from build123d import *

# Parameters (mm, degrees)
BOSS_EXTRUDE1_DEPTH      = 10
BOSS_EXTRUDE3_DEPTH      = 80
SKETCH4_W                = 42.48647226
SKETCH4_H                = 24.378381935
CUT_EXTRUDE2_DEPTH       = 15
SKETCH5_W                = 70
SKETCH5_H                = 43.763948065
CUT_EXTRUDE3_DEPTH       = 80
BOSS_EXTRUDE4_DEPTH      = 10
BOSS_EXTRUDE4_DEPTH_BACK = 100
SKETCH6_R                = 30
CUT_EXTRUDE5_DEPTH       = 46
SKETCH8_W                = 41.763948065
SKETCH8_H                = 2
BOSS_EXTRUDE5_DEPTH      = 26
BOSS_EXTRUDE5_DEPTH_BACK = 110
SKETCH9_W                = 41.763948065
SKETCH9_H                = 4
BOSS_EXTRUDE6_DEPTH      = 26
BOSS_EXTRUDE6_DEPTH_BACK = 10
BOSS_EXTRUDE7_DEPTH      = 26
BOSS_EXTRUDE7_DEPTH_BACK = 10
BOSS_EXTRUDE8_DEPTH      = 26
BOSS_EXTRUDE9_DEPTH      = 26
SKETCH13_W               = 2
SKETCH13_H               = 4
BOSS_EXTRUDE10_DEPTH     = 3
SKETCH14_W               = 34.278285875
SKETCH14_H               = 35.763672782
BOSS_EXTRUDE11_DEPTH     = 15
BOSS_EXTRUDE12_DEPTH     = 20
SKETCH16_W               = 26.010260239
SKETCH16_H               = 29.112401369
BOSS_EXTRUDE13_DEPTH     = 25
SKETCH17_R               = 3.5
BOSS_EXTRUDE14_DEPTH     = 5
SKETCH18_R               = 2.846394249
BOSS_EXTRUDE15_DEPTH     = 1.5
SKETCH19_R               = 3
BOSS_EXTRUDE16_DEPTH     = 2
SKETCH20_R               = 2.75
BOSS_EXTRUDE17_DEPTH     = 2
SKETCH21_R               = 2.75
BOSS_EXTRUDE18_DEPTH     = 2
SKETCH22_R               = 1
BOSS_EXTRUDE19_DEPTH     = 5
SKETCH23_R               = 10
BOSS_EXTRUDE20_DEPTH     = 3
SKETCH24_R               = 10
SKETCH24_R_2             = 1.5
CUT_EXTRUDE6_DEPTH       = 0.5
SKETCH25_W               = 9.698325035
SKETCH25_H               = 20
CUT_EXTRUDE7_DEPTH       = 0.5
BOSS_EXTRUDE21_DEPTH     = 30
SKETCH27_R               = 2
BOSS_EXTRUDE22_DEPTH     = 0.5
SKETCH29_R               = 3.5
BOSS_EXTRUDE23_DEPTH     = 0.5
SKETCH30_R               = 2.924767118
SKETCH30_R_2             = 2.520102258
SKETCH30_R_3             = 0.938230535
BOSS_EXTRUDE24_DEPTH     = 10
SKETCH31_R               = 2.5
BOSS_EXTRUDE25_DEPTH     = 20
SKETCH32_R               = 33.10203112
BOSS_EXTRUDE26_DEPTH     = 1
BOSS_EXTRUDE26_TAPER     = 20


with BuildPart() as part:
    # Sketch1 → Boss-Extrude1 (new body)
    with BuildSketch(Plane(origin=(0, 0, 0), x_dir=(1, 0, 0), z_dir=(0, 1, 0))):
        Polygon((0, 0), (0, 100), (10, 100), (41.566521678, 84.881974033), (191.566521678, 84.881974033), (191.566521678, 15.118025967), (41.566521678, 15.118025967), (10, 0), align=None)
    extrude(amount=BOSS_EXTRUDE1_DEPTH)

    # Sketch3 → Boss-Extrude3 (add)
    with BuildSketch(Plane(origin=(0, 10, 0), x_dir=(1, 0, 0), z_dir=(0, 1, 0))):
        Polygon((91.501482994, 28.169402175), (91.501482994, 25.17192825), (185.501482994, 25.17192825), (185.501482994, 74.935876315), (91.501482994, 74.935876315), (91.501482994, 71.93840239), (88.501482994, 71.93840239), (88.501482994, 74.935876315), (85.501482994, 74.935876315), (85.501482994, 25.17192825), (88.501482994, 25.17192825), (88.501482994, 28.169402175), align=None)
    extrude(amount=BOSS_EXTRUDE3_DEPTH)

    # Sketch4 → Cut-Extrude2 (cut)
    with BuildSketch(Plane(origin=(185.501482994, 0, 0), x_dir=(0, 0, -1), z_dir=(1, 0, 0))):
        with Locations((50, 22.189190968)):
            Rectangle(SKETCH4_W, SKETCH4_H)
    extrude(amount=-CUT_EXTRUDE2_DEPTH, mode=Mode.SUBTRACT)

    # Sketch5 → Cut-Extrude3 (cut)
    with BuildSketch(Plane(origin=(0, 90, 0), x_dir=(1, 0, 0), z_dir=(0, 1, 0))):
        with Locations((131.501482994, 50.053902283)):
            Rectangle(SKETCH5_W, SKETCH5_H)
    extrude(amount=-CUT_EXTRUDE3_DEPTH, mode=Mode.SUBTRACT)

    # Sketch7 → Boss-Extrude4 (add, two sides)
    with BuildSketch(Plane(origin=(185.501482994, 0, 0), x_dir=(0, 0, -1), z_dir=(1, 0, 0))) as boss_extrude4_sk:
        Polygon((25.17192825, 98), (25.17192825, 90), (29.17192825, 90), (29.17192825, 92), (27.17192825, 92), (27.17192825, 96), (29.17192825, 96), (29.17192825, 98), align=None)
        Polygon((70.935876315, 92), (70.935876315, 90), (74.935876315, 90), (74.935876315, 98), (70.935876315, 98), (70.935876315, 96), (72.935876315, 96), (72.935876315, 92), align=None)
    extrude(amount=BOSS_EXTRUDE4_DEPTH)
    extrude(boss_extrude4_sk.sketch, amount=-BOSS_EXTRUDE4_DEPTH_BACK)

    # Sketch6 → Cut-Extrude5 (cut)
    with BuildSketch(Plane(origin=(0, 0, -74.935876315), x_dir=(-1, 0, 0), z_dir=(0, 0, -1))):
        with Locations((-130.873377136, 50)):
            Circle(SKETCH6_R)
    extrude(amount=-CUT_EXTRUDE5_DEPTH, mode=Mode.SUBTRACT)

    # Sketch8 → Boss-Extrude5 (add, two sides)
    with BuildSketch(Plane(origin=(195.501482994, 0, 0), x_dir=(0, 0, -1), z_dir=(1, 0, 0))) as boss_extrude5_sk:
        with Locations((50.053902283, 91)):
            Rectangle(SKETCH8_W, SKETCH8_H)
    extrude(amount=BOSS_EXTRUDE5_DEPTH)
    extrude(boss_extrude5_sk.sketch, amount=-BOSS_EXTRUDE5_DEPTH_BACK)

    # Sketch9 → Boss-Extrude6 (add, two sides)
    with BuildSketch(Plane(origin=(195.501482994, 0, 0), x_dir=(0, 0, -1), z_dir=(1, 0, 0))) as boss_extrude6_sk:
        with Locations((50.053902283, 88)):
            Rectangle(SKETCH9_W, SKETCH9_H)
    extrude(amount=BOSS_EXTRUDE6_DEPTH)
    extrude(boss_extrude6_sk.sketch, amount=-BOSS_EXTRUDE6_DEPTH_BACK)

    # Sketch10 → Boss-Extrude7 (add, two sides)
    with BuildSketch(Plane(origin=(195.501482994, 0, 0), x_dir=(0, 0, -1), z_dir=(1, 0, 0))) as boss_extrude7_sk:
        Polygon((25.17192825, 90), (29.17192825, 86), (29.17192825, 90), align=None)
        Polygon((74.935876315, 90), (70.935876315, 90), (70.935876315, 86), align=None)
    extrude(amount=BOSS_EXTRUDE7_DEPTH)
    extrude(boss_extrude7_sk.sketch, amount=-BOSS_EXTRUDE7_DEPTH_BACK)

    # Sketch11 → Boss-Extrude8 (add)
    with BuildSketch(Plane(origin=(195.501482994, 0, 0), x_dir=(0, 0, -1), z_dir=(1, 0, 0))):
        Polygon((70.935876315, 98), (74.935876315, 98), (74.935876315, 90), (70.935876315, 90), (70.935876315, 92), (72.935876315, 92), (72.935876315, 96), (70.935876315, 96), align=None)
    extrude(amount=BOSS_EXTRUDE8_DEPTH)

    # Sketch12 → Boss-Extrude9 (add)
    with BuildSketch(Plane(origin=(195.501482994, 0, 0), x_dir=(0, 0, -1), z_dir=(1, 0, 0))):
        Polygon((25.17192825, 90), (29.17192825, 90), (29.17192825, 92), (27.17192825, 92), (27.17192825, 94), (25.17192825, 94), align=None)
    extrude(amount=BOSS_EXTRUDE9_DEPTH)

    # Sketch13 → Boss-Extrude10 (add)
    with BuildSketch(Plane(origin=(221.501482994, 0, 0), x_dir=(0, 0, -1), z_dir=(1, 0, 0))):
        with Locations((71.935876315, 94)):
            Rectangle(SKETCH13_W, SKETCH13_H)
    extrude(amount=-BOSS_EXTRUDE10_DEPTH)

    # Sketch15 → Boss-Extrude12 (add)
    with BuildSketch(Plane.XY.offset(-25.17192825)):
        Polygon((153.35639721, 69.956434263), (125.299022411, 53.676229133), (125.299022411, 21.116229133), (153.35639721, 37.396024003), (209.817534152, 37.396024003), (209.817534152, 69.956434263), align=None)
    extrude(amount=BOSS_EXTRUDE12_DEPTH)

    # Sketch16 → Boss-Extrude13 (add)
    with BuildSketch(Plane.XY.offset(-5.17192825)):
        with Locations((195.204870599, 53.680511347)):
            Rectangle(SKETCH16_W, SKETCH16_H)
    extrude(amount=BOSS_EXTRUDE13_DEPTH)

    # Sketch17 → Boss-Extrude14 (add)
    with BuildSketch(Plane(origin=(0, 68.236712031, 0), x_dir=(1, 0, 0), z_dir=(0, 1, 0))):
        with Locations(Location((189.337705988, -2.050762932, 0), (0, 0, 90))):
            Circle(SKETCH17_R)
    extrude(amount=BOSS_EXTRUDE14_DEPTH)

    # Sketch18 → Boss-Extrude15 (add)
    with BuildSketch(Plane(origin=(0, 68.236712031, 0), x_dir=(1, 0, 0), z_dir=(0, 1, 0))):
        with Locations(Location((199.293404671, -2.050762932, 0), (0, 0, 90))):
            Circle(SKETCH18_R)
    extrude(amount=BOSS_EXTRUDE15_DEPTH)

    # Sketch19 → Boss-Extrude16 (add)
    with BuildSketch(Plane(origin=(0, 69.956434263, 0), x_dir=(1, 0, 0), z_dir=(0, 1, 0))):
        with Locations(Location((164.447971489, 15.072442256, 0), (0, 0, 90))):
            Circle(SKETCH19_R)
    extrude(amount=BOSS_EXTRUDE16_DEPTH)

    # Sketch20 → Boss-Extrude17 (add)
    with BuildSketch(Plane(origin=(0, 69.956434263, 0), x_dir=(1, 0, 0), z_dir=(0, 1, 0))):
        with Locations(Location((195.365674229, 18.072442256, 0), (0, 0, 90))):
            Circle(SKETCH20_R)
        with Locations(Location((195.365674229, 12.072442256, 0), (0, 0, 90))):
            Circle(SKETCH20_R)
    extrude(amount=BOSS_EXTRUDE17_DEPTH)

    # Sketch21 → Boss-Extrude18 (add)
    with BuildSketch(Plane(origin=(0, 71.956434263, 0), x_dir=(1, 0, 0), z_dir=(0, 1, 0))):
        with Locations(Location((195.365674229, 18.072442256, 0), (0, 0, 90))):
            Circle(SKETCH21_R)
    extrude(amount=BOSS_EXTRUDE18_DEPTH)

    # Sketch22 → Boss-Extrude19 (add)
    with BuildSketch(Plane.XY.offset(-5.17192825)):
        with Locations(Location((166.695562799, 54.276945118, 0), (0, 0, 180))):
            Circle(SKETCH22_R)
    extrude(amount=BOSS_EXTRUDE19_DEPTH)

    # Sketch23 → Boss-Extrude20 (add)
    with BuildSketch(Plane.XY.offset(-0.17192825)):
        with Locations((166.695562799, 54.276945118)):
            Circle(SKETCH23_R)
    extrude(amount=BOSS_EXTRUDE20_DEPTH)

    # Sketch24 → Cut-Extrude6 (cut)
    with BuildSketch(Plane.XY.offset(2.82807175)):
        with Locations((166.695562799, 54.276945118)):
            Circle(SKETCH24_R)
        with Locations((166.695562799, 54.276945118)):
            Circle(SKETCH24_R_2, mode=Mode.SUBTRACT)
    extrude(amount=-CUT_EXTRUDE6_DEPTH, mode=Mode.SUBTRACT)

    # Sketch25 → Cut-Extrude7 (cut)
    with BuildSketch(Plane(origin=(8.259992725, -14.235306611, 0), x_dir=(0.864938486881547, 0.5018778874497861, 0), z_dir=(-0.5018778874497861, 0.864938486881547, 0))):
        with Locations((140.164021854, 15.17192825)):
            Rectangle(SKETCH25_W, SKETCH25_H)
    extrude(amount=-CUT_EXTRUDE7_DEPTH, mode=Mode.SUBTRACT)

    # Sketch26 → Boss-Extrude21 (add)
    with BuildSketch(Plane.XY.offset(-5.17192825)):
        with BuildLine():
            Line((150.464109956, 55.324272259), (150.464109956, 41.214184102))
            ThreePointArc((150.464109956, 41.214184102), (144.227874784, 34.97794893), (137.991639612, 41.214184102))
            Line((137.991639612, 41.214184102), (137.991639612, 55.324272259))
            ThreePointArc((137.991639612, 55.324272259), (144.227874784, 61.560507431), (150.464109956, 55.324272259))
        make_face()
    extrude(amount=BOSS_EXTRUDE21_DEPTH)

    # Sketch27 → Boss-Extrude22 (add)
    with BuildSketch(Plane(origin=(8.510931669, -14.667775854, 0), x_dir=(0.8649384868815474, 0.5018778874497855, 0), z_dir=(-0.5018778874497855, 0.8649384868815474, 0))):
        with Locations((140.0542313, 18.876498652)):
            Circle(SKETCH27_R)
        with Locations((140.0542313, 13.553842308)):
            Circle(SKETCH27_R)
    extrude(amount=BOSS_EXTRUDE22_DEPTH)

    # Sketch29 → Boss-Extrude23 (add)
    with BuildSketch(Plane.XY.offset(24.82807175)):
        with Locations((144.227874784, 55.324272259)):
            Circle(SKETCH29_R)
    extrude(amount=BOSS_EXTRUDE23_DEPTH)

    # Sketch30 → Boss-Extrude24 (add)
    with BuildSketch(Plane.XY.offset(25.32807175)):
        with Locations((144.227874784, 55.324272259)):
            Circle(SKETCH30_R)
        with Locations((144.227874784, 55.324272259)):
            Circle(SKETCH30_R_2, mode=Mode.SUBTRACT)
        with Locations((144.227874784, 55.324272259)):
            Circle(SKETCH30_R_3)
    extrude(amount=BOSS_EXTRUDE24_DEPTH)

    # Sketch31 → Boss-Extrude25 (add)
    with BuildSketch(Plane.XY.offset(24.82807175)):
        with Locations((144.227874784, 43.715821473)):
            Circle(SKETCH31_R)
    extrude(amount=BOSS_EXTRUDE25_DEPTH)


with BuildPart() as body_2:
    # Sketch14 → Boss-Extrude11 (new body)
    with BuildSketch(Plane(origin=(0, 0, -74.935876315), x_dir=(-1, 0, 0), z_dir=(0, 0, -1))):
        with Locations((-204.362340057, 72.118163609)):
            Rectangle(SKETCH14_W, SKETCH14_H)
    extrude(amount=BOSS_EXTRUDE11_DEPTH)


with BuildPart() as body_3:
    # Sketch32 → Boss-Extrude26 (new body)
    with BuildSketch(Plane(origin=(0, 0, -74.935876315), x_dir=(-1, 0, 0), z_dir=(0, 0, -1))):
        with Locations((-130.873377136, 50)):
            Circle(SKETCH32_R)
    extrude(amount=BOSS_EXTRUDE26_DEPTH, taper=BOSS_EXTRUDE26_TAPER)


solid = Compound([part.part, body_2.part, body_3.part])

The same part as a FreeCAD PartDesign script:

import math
import FreeCAD as App
import Part
import Sketcher


def add_polygon(sketch, points):
    """Adds a closed chain of lines whose ends are joined by coincident constraints."""
    first, n = sketch.GeometryCount, len(points)
    for a, b in zip(points, points[1:] + points[:1]):
        sketch.addGeometry(Part.LineSegment(App.Vector(*a, 0), App.Vector(*b, 0)), False)
    for i in range(n):
        sketch.addConstraint(Sketcher.Constraint("Coincident", first + i, 2, first + (i + 1) % n, 1))

doc = App.newDocument("Part")
body = doc.addObject("PartDesign::Body", "Body")

# Sketch on XZ plane
sketch1 = body.newObject("Sketcher::SketchObject", "Sketch")
sketch1.AttachmentSupport = (doc.getObject("XZ_Plane"), [""])
sketch1.MapMode = "FlatFace"
add_polygon(sketch1, [(0, -100), (0, 0), (10, 0), (42, -15), (192, -15), (192, -85), (42, -85), (10, -100)])  # lines 0-7
sketch1.addConstraint(Sketcher.Constraint("Vertical", 0))
sketch1.addConstraint(Sketcher.Constraint("Horizontal", 1))
sketch1.addConstraint(Sketcher.Constraint("Horizontal", 3))
sketch1.addConstraint(Sketcher.Constraint("Vertical", 4))
sketch1.addConstraint(Sketcher.Constraint("Horizontal", 5))
sketch1.addConstraint(Sketcher.Constraint("Horizontal", 7))
sketch1.addConstraint(Sketcher.Constraint("Coincident", 0, 2, -1, 1))
sketch1.addConstraint(Sketcher.Constraint("Vertical", 2, 2, 5, 2))
sketch1.addConstraint(Sketcher.Constraint("Vertical", 1, 2, 6, 2))
sketch1.addConstraint(Sketcher.Constraint("Equal", 2, 6))
sketch1.addConstraint(Sketcher.Constraint("DistanceX", 1, 1, 1, 2, 10.0))
sketch1.addConstraint(Sketcher.Constraint("DistanceX", 3, 1, 3, 2, 150.0))
sketch1.addConstraint(Sketcher.Constraint("DistanceY", 0, 1, 0, 2, 100.0))
sketch1.addConstraint(Sketcher.Constraint("Distance", 2, 35.0))
sketch1.addConstraint(Sketcher.Constraint("DistanceY", 4, 2, 4, 1, 69.763948))
pad1 = body.newObject("PartDesign::Pad", "Pad")
pad1.Profile = sketch1
pad1.Length = 10
pad1.Reversed = True

# Sketch on XZ plane
sketch2 = body.newObject("Sketcher::SketchObject", "Sketch001")
sketch2.AttachmentSupport = (doc.getObject("XZ_Plane"), [""])
sketch2.MapMode = "FlatFace"
sketch2.AttachmentOffset = App.Placement(App.Vector(0, 0, -10), App.Rotation())
add_polygon(sketch2, [(91.5, -28.2), (91.5, -25.2), (185.5, -25.2), (185.5, -74.9), (91.5, -74.9), (91.5, -71.9), (88.5, -71.9), (88.5, -74.9), (85.5, -74.9), (85.5, -25.2), (88.5, -25.2), (88.5, -28.2)])  # lines 0-11
sketch2.addConstraint(Sketcher.Constraint("Vertical", 0))
sketch2.addConstraint(Sketcher.Constraint("Horizontal", 1))
sketch2.addConstraint(Sketcher.Constraint("Vertical", 2))
sketch2.addConstraint(Sketcher.Constraint("Horizontal", 3))
sketch2.addConstraint(Sketcher.Constraint("Vertical", 4))
sketch2.addConstraint(Sketcher.Constraint("Horizontal", 5))
sketch2.addConstraint(Sketcher.Constraint("Vertical", 6))
sketch2.addConstraint(Sketcher.Constraint("Horizontal", 7))
sketch2.addConstraint(Sketcher.Constraint("Vertical", 8))
sketch2.addConstraint(Sketcher.Constraint("Horizontal", 9))
sketch2.addConstraint(Sketcher.Constraint("Vertical", 10))
sketch2.addConstraint(Sketcher.Constraint("Horizontal", 11))
sketch2.addConstraint(Sketcher.Constraint("Horizontal", 3, 2, 6, 2))
sketch2.addConstraint(Sketcher.Constraint("Horizontal", 1, 2, 8, 2))
sketch2.addConstraint(Sketcher.Constraint("Vertical", 0, 2, 3, 2))
sketch2.addConstraint(Sketcher.Constraint("Vertical", 6, 2, 9, 2))
sketch2.addConstraint(Sketcher.Constraint("Equal", 5, 7))
sketch2.addConstraint(Sketcher.Constraint("Equal", 0, 4))
sketch2.addConstraint(Sketcher.Constraint("DistanceX", 1, 1, 1, 2, 94.0))
sketch2.addConstraint(Sketcher.Constraint("DistanceX", 5, 2, 5, 1, 3.0))
sketch2.addConstraint(Sketcher.Constraint("DistanceY", 5, 2, 10, 2, 43.769))
sketch2.addConstraint(Sketcher.Constraint("DistanceY", 2, 2, 2, 1, 49.763948))
sketch2.addConstraint(Sketcher.Constraint("DistanceY", 0, 2, -1, 1, 25.171928))
sketch2.addConstraint(Sketcher.Constraint("DistanceX", -1, 1, 0, 2, 91.501483))
pad2 = body.newObject("PartDesign::Pad", "Pad001")
pad2.Profile = sketch2
pad2.Length = 80
pad2.Reversed = True

# Sketch on YZ plane
sketch3 = body.newObject("Sketcher::SketchObject", "Sketch002")
sketch3.AttachmentSupport = (doc.getObject("YZ_Plane"), [""])
sketch3.MapMode = "FlatFace"
sketch3.AttachmentOffset = App.Placement(App.Vector(0, 0, 185.501483), App.Rotation())
add_polygon(sketch3, [(34, -29), (10, -29), (10, -71), (34, -71)])  # lines 0-3
sketch3.addConstraint(Sketcher.Constraint("Horizontal", 0))
sketch3.addConstraint(Sketcher.Constraint("Vertical", 1))
sketch3.addConstraint(Sketcher.Constraint("Horizontal", 2))
sketch3.addConstraint(Sketcher.Constraint("Vertical", 3))
sketch3.addConstraint(Sketcher.Constraint("DistanceX", -1, 1, 0, 2, 10.0))
sketch3.addConstraint(Sketcher.Constraint("DistanceX", 0, 2, 0, 1, 24.378382))
sketch3.addConstraint(Sketcher.Constraint("DistanceY", 1, 2, 1, 1, 42.486472))
sketch3.addConstraint(Sketcher.Constraint("DistanceY", 0, 2, -1, 1, 28.756764))
pocket1 = body.newObject("PartDesign::Pocket", "Pocket")
pocket1.Profile = sketch3
pocket1.Length = 15

# Sketch on XZ plane
sketch4 = body.newObject("Sketcher::SketchObject", "Sketch003")
sketch4.AttachmentSupport = (doc.getObject("XZ_Plane"), [""])
sketch4.MapMode = "FlatFace"
sketch4.AttachmentOffset = App.Placement(App.Vector(0, 0, -90), App.Rotation())
add_polygon(sketch4, [(97, -72), (97, -28), (167, -28), (167, -72)])  # lines 0-3
sketch4.addConstraint(Sketcher.Constraint("Vertical", 0))
sketch4.addConstraint(Sketcher.Constraint("Horizontal", 1))
sketch4.addConstraint(Sketcher.Constraint("Vertical", 2))
sketch4.addConstraint(Sketcher.Constraint("Horizontal", 3))
sketch4.addConstraint(Sketcher.Constraint("DistanceX", 1, 1, 1, 2, 70.0))
sketch4.addConstraint(Sketcher.Constraint("DistanceY", 0, 1, 0, 2, 43.763948))
sketch4.addConstraint(Sketcher.Constraint("DistanceY", 0, 2, -1, 1, 28.171928))
sketch4.addConstraint(Sketcher.Constraint("DistanceX", -1, 1, 0, 2, 96.501483))
pocket2 = body.newObject("PartDesign::Pocket", "Pocket001")
pocket2.Profile = sketch4
pocket2.Length = 80
pocket2.Reversed = True

# Sketch on YZ plane
sketch5 = body.newObject("Sketcher::SketchObject", "Sketch004")
sketch5.AttachmentSupport = (doc.getObject("YZ_Plane"), [""])
sketch5.MapMode = "FlatFace"
sketch5.AttachmentOffset = App.Placement(App.Vector(0, 0, 185.501483), App.Rotation())
add_polygon(sketch5, [(98, -25.2), (90, -25.2), (90, -29.2), (92, -29.2), (92, -27.2), (96, -27.2), (96, -29.2), (98, -29.2)])  # lines 0-7
add_polygon(sketch5, [(92, -70.9), (90, -70.9), (90, -74.9), (98, -74.9), (98, -70.9), (96, -70.9), (96, -72.9), (92, -72.9)])  # lines 8-15
sketch5.addConstraint(Sketcher.Constraint("Horizontal", 0))
sketch5.addConstraint(Sketcher.Constraint("Vertical", 1))
sketch5.addConstraint(Sketcher.Constraint("Horizontal", 2))
sketch5.addConstraint(Sketcher.Constraint("Vertical", 3))
sketch5.addConstraint(Sketcher.Constraint("Horizontal", 4))
sketch5.addConstraint(Sketcher.Constraint("Vertical", 5))
sketch5.addConstraint(Sketcher.Constraint("Horizontal", 6))
sketch5.addConstraint(Sketcher.Constraint("Vertical", 7))
sketch5.addConstraint(Sketcher.Constraint("Horizontal", 8))
sketch5.addConstraint(Sketcher.Constraint("Vertical", 9))
sketch5.addConstraint(Sketcher.Constraint("Horizontal", 10))
sketch5.addConstraint(Sketcher.Constraint("Vertical", 11))
sketch5.addConstraint(Sketcher.Constraint("Horizontal", 12))
sketch5.addConstraint(Sketcher.Constraint("Vertical", 13))
sketch5.addConstraint(Sketcher.Constraint("Horizontal", 14))
sketch5.addConstraint(Sketcher.Constraint("Vertical", 15))
sketch5.addConstraint(Sketcher.Constraint("Horizontal", 2, 2, 5, 2))
sketch5.addConstraint(Sketcher.Constraint("Horizontal", 8, 2, 11, 2))
sketch5.addConstraint(Sketcher.Constraint("Vertical", 1, 2, 8, 2))
sketch5.addConstraint(Sketcher.Constraint("Vertical", 7, 2, 10, 2))
sketch5.addConstraint(Sketcher.Constraint("Vertical", 5, 2, 12, 2))
sketch5.addConstraint(Sketcher.Constraint("Vertical", 3, 2, 14, 2))
sketch5.addConstraint(Sketcher.Constraint("Equal", 2, 6))
sketch5.addConstraint(Sketcher.Constraint("Equal", 14, 1))
sketch5.addConstraint(Sketcher.Constraint("Equal", 12, 3))
sketch5.addConstraint(Sketcher.Constraint("Equal", 7, 9))
sketch5.addConstraint(Sketcher.Constraint("Equal", 5, 13))
sketch5.addConstraint(Sketcher.Constraint("DistanceX", 0, 2, 0, 1, 8.0))
sketch5.addConstraint(Sketcher.Constraint("DistanceX", 2, 1, 2, 2, 2.0))
sketch5.addConstraint(Sketcher.Constraint("DistanceX", -1, 1, 0, 2, 90.0))
sketch5.addConstraint(Sketcher.Constraint("DistanceY", 0, 2, -1, 1, 25.171928))
sketch5.addConstraint(Sketcher.Constraint("DistanceY", 8, 2, 1, 2, 41.763948))
pad3 = body.newObject("PartDesign::Pad", "Pad002")
pad3.Profile = sketch5
pad3.Type = "TwoLengths"
pad3.Length = 10
pad3.Length2 = 100

# Sketch on XY plane
sketch6 = body.newObject("Sketcher::SketchObject", "Sketch005")
sketch6.AttachmentSupport = (doc.getObject("XY_Plane"), [""])
sketch6.MapMode = "FlatFace"
sketch6.AttachmentOffset = App.Placement(App.Vector(0, 0, -74.935876), App.Rotation())
sketch6.addGeometry(Part.Circle(App.Vector(131, 50, 0), App.Vector(0, 0, 1), 30), False)
sketch6.addConstraint(Sketcher.Constraint("Diameter", 0, 60.0))
sketch6.addConstraint(Sketcher.Constraint("DistanceY", -1, 1, 0, 3, 50.0))
sketch6.addConstraint(Sketcher.Constraint("DistanceX", -1, 1, 0, 3, 130.873377))
pocket3 = body.newObject("PartDesign::Pocket", "Pocket002")
pocket3.Profile = sketch6
pocket3.Length = 46
pocket3.Reversed = True

# Sketch on YZ plane
sketch7 = body.newObject("Sketcher::SketchObject", "Sketch006")
sketch7.AttachmentSupport = (doc.getObject("YZ_Plane"), [""])
sketch7.MapMode = "FlatFace"
sketch7.AttachmentOffset = App.Placement(App.Vector(0, 0, 195.501483), App.Rotation())
add_polygon(sketch7, [(92, -29.2), (90, -29.2), (90, -70.9), (92, -70.9)])  # lines 0-3
sketch7.addConstraint(Sketcher.Constraint("Horizontal", 0))
sketch7.addConstraint(Sketcher.Constraint("Vertical", 1))
sketch7.addConstraint(Sketcher.Constraint("Horizontal", 2))
sketch7.addConstraint(Sketcher.Constraint("Vertical", 3))
sketch7.addConstraint(Sketcher.Constraint("DistanceX", 0, 2, 0, 1, 2.0))
sketch7.addConstraint(Sketcher.Constraint("DistanceX", -1, 1, 0, 2, 90.0))
sketch7.addConstraint(Sketcher.Constraint("DistanceY", 1, 2, 1, 1, 41.763948))
sketch7.addConstraint(Sketcher.Constraint("DistanceY", 0, 2, -1, 1, 29.171928))
pad4 = body.newObject("PartDesign::Pad", "Pad003")
pad4.Profile = sketch7
pad4.Type = "TwoLengths"
pad4.Length = 26
pad4.Length2 = 110

# Sketch on YZ plane
sketch8 = body.newObject("Sketcher::SketchObject", "Sketch007")
sketch8.AttachmentSupport = (doc.getObject("YZ_Plane"), [""])
sketch8.MapMode = "FlatFace"
sketch8.AttachmentOffset = App.Placement(App.Vector(0, 0, 195.501483), App.Rotation())
add_polygon(sketch8, [(90, -29.2), (86, -29.2), (86, -70.9), (90, -70.9)])  # lines 0-3
sketch8.addConstraint(Sketcher.Constraint("Horizontal", 0))
sketch8.addConstraint(Sketcher.Constraint("Vertical", 1))
sketch8.addConstraint(Sketcher.Constraint("Horizontal", 2))
sketch8.addConstraint(Sketcher.Constraint("Vertical", 3))
sketch8.addConstraint(Sketcher.Constraint("DistanceX", 0, 2, 0, 1, 4.0))
sketch8.addConstraint(Sketcher.Constraint("DistanceX", -1, 1, 0, 2, 86.0))
sketch8.addConstraint(Sketcher.Constraint("DistanceY", 1, 2, 1, 1, 41.763948))
sketch8.addConstraint(Sketcher.Constraint("DistanceY", 0, 2, -1, 1, 29.171928))
pad5 = body.newObject("PartDesign::Pad", "Pad004")
pad5.Profile = sketch8
pad5.Type = "TwoLengths"
pad5.Length = 26
pad5.Length2 = 10

# Sketch on YZ plane
sketch9 = body.newObject("Sketcher::SketchObject", "Sketch008")
sketch9.AttachmentSupport = (doc.getObject("YZ_Plane"), [""])
sketch9.MapMode = "FlatFace"
sketch9.AttachmentOffset = App.Placement(App.Vector(0, 0, 195.501483), App.Rotation())
add_polygon(sketch9, [(90, -25.2), (86, -29.2), (90, -29.2)])  # lines 0-2
add_polygon(sketch9, [(90, -74.9), (90, -70.9), (86, -70.9)])  # lines 3-5
sketch9.addConstraint(Sketcher.Constraint("Horizontal", 1))
sketch9.addConstraint(Sketcher.Constraint("Vertical", 2))
sketch9.addConstraint(Sketcher.Constraint("Vertical", 3))
sketch9.addConstraint(Sketcher.Constraint("Horizontal", 4))
sketch9.addConstraint(Sketcher.Constraint("Perpendicular", 0, 5))
sketch9.addConstraint(Sketcher.Constraint("Vertical", 2, 2, 3, 2))
sketch9.addConstraint(Sketcher.Constraint("Vertical", 0, 2, 4, 2))
sketch9.addConstraint(Sketcher.Constraint("Equal", 4, 2))
sketch9.addConstraint(Sketcher.Constraint("DistanceX", 1, 1, 1, 2, 4.0))
sketch9.addConstraint(Sketcher.Constraint("DistanceX", -1, 1, 0, 2, 86.0))
sketch9.addConstraint(Sketcher.Constraint("DistanceY", 0, 2, -1, 1, 29.171928))
sketch9.addConstraint(Sketcher.Constraint("DistanceY", 3, 2, 1, 2, 41.763948))
pad6 = body.newObject("PartDesign::Pad", "Pad005")
pad6.Profile = sketch9
pad6.Type = "TwoLengths"
pad6.Length = 26
pad6.Length2 = 10

# Sketch on YZ plane
sketch10 = body.newObject("Sketcher::SketchObject", "Sketch009")
sketch10.AttachmentSupport = (doc.getObject("YZ_Plane"), [""])
sketch10.MapMode = "FlatFace"
sketch10.AttachmentOffset = App.Placement(App.Vector(0, 0, 195.501483), App.Rotation())
add_polygon(sketch10, [(98, -74.9), (98, -70.9), (96, -70.9), (96, -72.9), (92, -72.9), (92, -70.9), (90, -70.9), (90, -74.9)])  # lines 0-7
sketch10.addConstraint(Sketcher.Constraint("Vertical", 0))
sketch10.addConstraint(Sketcher.Constraint("Horizontal", 1))
sketch10.addConstraint(Sketcher.Constraint("Vertical", 2))
sketch10.addConstraint(Sketcher.Constraint("Horizontal", 3))
sketch10.addConstraint(Sketcher.Constraint("Vertical", 4))
sketch10.addConstraint(Sketcher.Constraint("Horizontal", 5))
sketch10.addConstraint(Sketcher.Constraint("Vertical", 6))
sketch10.addConstraint(Sketcher.Constraint("Horizontal", 7))
sketch10.addConstraint(Sketcher.Constraint("Horizontal", 1, 2, 4, 2))
sketch10.addConstraint(Sketcher.Constraint("Equal", 1, 5))
sketch10.addConstraint(Sketcher.Constraint("Equal", 3, 0))
sketch10.addConstraint(Sketcher.Constraint("Equal", 5, 2))
sketch10.addConstraint(Sketcher.Constraint("DistanceX", 1, 2, 1, 1, 2.0))
sketch10.addConstraint(Sketcher.Constraint("DistanceX", 3, 2, 3, 1, 4.0))
sketch10.addConstraint(Sketcher.Constraint("DistanceX", -1, 1, 0, 2, 98.0))
sketch10.addConstraint(Sketcher.Constraint("DistanceY", 0, 2, -1, 1, 70.935876))
pad7 = body.newObject("PartDesign::Pad", "Pad006")
pad7.Profile = sketch10
pad7.Length = 26

# Sketch on YZ plane
sketch11 = body.newObject("Sketcher::SketchObject", "Sketch010")
sketch11.AttachmentSupport = (doc.getObject("YZ_Plane"), [""])
sketch11.MapMode = "FlatFace"
sketch11.AttachmentOffset = App.Placement(App.Vector(0, 0, 195.501483), App.Rotation())
add_polygon(sketch11, [(90, -25.2), (90, -29.2), (92, -29.2), (92, -27.2), (94, -27.2), (94, -25.2)])  # lines 0-5
sketch11.addConstraint(Sketcher.Constraint("Vertical", 0))
sketch11.addConstraint(Sketcher.Constraint("Horizontal", 1))
sketch11.addConstraint(Sketcher.Constraint("Vertical", 2))
sketch11.addConstraint(Sketcher.Constraint("Horizontal", 3))
sketch11.addConstraint(Sketcher.Constraint("Vertical", 4))
sketch11.addConstraint(Sketcher.Constraint("Horizontal", 5))
sketch11.addConstraint(Sketcher.Constraint("Equal", 1, 3))
sketch11.addConstraint(Sketcher.Constraint("Equal", 5, 0))
sketch11.addConstraint(Sketcher.Constraint("Equal", 3, 2))
sketch11.addConstraint(Sketcher.Constraint("DistanceX", 1, 1, 1, 2, 2.0))
sketch11.addConstraint(Sketcher.Constraint("DistanceX", -1, 1, 0, 2, 90.0))
sketch11.addConstraint(Sketcher.Constraint("DistanceY", 0, 2, -1, 1, 29.171928))
pad8 = body.newObject("PartDesign::Pad", "Pad007")
pad8.Profile = sketch11
pad8.Length = 26

# Sketch on YZ plane
sketch12 = body.newObject("Sketcher::SketchObject", "Sketch011")
sketch12.AttachmentSupport = (doc.getObject("YZ_Plane"), [""])
sketch12.MapMode = "FlatFace"
sketch12.AttachmentOffset = App.Placement(App.Vector(0, 0, 221.501483), App.Rotation())
add_polygon(sketch12, [(96, -70.9), (92, -70.9), (92, -72.9), (96, -72.9)])  # lines 0-3
sketch12.addConstraint(Sketcher.Constraint("Horizontal", 0))
sketch12.addConstraint(Sketcher.Constraint("Vertical", 1))
sketch12.addConstraint(Sketcher.Constraint("Horizontal", 2))
sketch12.addConstraint(Sketcher.Constraint("Vertical", 3))
sketch12.addConstraint(Sketcher.Constraint("DistanceX", 0, 2, 0, 1, 4.0))
sketch12.addConstraint(Sketcher.Constraint("DistanceY", 1, 2, 1, 1, 2.0))
sketch12.addConstraint(Sketcher.Constraint("DistanceX", -1, 1, 0, 2, 92.0))
sketch12.addConstraint(Sketcher.Constraint("DistanceY", 0, 2, -1, 1, 70.935876))
pad9 = body.newObject("PartDesign::Pad", "Pad008")
pad9.Profile = sketch12
pad9.Length = 3
pad9.Reversed = True

# Sketch on XY plane
sketch13 = body.newObject("Sketcher::SketchObject", "Sketch012")
sketch13.AttachmentSupport = (doc.getObject("XY_Plane"), [""])
sketch13.MapMode = "FlatFace"
sketch13.AttachmentOffset = App.Placement(App.Vector(0, 0, -25.171928), App.Rotation())
add_polygon(sketch13, [(153, 70), (125, 54), (125, 21), (153, 37), (210, 37), (210, 70)])  # lines 0-5
sketch13.addConstraint(Sketcher.Constraint("Vertical", 1))
sketch13.addConstraint(Sketcher.Constraint("Horizontal", 3))
sketch13.addConstraint(Sketcher.Constraint("Vertical", 4))
sketch13.addConstraint(Sketcher.Constraint("Horizontal", 5))
sketch13.addConstraint(Sketcher.Constraint("Vertical", 2, 2, 5, 2))
sketch13.addConstraint(Sketcher.Constraint("DistanceY", 1, 2, 1, 1, 32.56))
sketch13.addConstraint(Sketcher.Constraint("DistanceY", 4, 1, 4, 2, 32.56041))
sketch13.addConstraint(Sketcher.Constraint("Distance", 0, 32.438578))
sketch13.addConstraint(Sketcher.Constraint("DistanceX", 3, 1, 3, 2, 56.461137))
sketch13.addConstraint(Sketcher.Constraint("DistanceY", -1, 1, 0, 2, 53.676229))
sketch13.addConstraint(Sketcher.Constraint("DistanceX", 1, 2, 3, 2, 84.518512))
sketch13.addConstraint(Sketcher.Constraint("DistanceX", -1, 1, 0, 2, 125.299022))
pad10 = body.newObject("PartDesign::Pad", "Pad009")
pad10.Profile = sketch13
pad10.Length = 20

# Sketch on XY plane
sketch14 = body.newObject("Sketcher::SketchObject", "Sketch013")
sketch14.AttachmentSupport = (doc.getObject("XY_Plane"), [""])
sketch14.MapMode = "FlatFace"
sketch14.AttachmentOffset = App.Placement(App.Vector(0, 0, -5.171928), App.Rotation())
add_polygon(sketch14, [(182, 68), (182, 39), (208, 39), (208, 68)])  # lines 0-3
sketch14.addConstraint(Sketcher.Constraint("Vertical", 0))
sketch14.addConstraint(Sketcher.Constraint("Horizontal", 1))
sketch14.addConstraint(Sketcher.Constraint("Vertical", 2))
sketch14.addConstraint(Sketcher.Constraint("Horizontal", 3))
sketch14.addConstraint(Sketcher.Constraint("DistanceX", -1, 1, 1, 2, 208.210001))
sketch14.addConstraint(Sketcher.Constraint("DistanceY", 0, 2, 0, 1, 29.112401))
sketch14.addConstraint(Sketcher.Constraint("DistanceX", 1, 1, 1, 2, 26.01026))
sketch14.addConstraint(Sketcher.Constraint("DistanceY", -1, 1, 0, 2, 39.124311))
pad11 = body.newObject("PartDesign::Pad", "Pad010")
pad11.Profile = sketch14
pad11.Length = 25

# Sketch on XZ plane
sketch15 = body.newObject("Sketcher::SketchObject", "Sketch014")
sketch15.AttachmentSupport = (doc.getObject("XZ_Plane"), [""])
sketch15.MapMode = "FlatFace"
sketch15.AttachmentOffset = App.Placement(App.Vector(0, 0, -68.236712), App.Rotation())
sketch15.addGeometry(Part.Circle(App.Vector(189.3, 2.1, 0), App.Vector(0, 0, 1), 3.5), False)
sketch15.addConstraint(Sketcher.Constraint("Diameter", 0, 7.0))
sketch15.addConstraint(Sketcher.Constraint("DistanceX", -1, 1, 0, 3, 189.337706))
sketch15.addConstraint(Sketcher.Constraint("DistanceY", -1, 1, 0, 3, 2.050763))
pad12 = body.newObject("PartDesign::Pad", "Pad011")
pad12.Profile = sketch15
pad12.Length = 5
pad12.Reversed = True

# Sketch on XZ plane
sketch16 = body.newObject("Sketcher::SketchObject", "Sketch015")
sketch16.AttachmentSupport = (doc.getObject("XZ_Plane"), [""])
sketch16.MapMode = "FlatFace"
sketch16.AttachmentOffset = App.Placement(App.Vector(0, 0, -68.236712), App.Rotation())
sketch16.addGeometry(Part.Circle(App.Vector(199.3, 2.1, 0), App.Vector(0, 0, 1), 2.8), False)
sketch16.addConstraint(Sketcher.Constraint("Diameter", 0, 5.692788))
sketch16.addConstraint(Sketcher.Constraint("DistanceX", -1, 1, 0, 3, 199.293405))
sketch16.addConstraint(Sketcher.Constraint("DistanceY", -1, 1, 0, 3, 2.050763))
pad13 = body.newObject("PartDesign::Pad", "Pad012")
pad13.Profile = sketch16
pad13.Length = 1.5
pad13.Reversed = True

# Sketch on XZ plane
sketch17 = body.newObject("Sketcher::SketchObject", "Sketch016")
sketch17.AttachmentSupport = (doc.getObject("XZ_Plane"), [""])
sketch17.MapMode = "FlatFace"
sketch17.AttachmentOffset = App.Placement(App.Vector(0, 0, -69.956434), App.Rotation())
sketch17.addGeometry(Part.Circle(App.Vector(164.4, -15.1, 0), App.Vector(0, 0, 1), 3), False)
sketch17.addConstraint(Sketcher.Constraint("Diameter", 0, 6.0))
sketch17.addConstraint(Sketcher.Constraint("DistanceX", -1, 1, 0, 3, 164.447971))
sketch17.addConstraint(Sketcher.Constraint("DistanceY", 0, 3, -1, 1, 15.072442))
pad14 = body.newObject("PartDesign::Pad", "Pad013")
pad14.Profile = sketch17
pad14.Length = 2
pad14.Reversed = True

# Sketch on XZ plane
sketch18 = body.newObject("Sketcher::SketchObject", "Sketch017")
sketch18.AttachmentSupport = (doc.getObject("XZ_Plane"), [""])
sketch18.MapMode = "FlatFace"
sketch18.AttachmentOffset = App.Placement(App.Vector(0, 0, -69.956434), App.Rotation())
sketch18.addGeometry(Part.Circle(App.Vector(195.4, -18.1, 0), App.Vector(0, 0, 1), 2.8), False)
sketch18.addGeometry(Part.Circle(App.Vector(195.4, -12.1, 0), App.Vector(0, 0, 1), 2.8), False)
sketch18.addConstraint(Sketcher.Constraint("Equal", 0, 1))
sketch18.addConstraint(Sketcher.Constraint("Vertical", 0, 3, 1, 3))
sketch18.addConstraint(Sketcher.Constraint("Diameter", 0, 5.5))
sketch18.addConstraint(Sketcher.Constraint("DistanceY", 0, 3, 1, 3, 6.0))
sketch18.addConstraint(Sketcher.Constraint("DistanceX", -1, 1, 0, 3, 195.365674))
sketch18.addConstraint(Sketcher.Constraint("DistanceY", 0, 3, -1, 1, 18.072442))
pad15 = body.newObject("PartDesign::Pad", "Pad014")
pad15.Profile = sketch18
pad15.Length = 2
pad15.Reversed = True

# Sketch on XZ plane
sketch19 = body.newObject("Sketcher::SketchObject", "Sketch018")
sketch19.AttachmentSupport = (doc.getObject("XZ_Plane"), [""])
sketch19.MapMode = "FlatFace"
sketch19.AttachmentOffset = App.Placement(App.Vector(0, 0, -71.956434), App.Rotation())
sketch19.addGeometry(Part.Circle(App.Vector(195.4, -18.1, 0), App.Vector(0, 0, 1), 2.8), False)
sketch19.addConstraint(Sketcher.Constraint("Diameter", 0, 5.5))
sketch19.addConstraint(Sketcher.Constraint("DistanceX", -1, 1, 0, 3, 195.365674))
sketch19.addConstraint(Sketcher.Constraint("DistanceY", 0, 3, -1, 1, 18.072442))
pad16 = body.newObject("PartDesign::Pad", "Pad015")
pad16.Profile = sketch19
pad16.Length = 2
pad16.Reversed = True

# Sketch on XY plane
sketch20 = body.newObject("Sketcher::SketchObject", "Sketch019")
sketch20.AttachmentSupport = (doc.getObject("XY_Plane"), [""])
sketch20.MapMode = "FlatFace"
sketch20.AttachmentOffset = App.Placement(App.Vector(0, 0, -5.171928), App.Rotation())
sketch20.addGeometry(Part.Circle(App.Vector(166.7, 54.3, 0), App.Vector(0, 0, 1), 1), False)
sketch20.addConstraint(Sketcher.Constraint("Diameter", 0, 2.0))
sketch20.addConstraint(Sketcher.Constraint("DistanceX", -1, 1, 0, 3, 166.695563))
sketch20.addConstraint(Sketcher.Constraint("DistanceY", -1, 1, 0, 3, 54.276945))
pad17 = body.newObject("PartDesign::Pad", "Pad016")
pad17.Profile = sketch20
pad17.Length = 5

# Sketch on XY plane
sketch21 = body.newObject("Sketcher::SketchObject", "Sketch020")
sketch21.AttachmentSupport = (doc.getObject("XY_Plane"), [""])
sketch21.MapMode = "FlatFace"
sketch21.AttachmentOffset = App.Placement(App.Vector(0, 0, -0.171928), App.Rotation())
sketch21.addGeometry(Part.Circle(App.Vector(167, 54, 0), App.Vector(0, 0, 1), 10), False)
sketch21.addConstraint(Sketcher.Constraint("Diameter", 0, 20.0))
sketch21.addConstraint(Sketcher.Constraint("DistanceX", -1, 1, 0, 3, 166.695563))
sketch21.addConstraint(Sketcher.Constraint("DistanceY", -1, 1, 0, 3, 54.276945))
pad18 = body.newObject("PartDesign::Pad", "Pad017")
pad18.Profile = sketch21
pad18.Length = 3

# Sketch on XY plane
sketch22 = body.newObject("Sketcher::SketchObject", "Sketch021")
sketch22.AttachmentSupport = (doc.getObject("XY_Plane"), [""])
sketch22.MapMode = "FlatFace"
sketch22.AttachmentOffset = App.Placement(App.Vector(0, 0, 2.828072), App.Rotation())
sketch22.addGeometry(Part.Circle(App.Vector(166.7, 54.3, 0), App.Vector(0, 0, 1), 10), False)
sketch22.addGeometry(Part.Circle(App.Vector(166.7, 54.3, 0), App.Vector(0, 0, 1), 1.5), False)
sketch22.addConstraint(Sketcher.Constraint("Coincident", 1, 3, 0, 3))
sketch22.addConstraint(Sketcher.Constraint("Diameter", 0, 20.0))
sketch22.addConstraint(Sketcher.Constraint("Diameter", 1, 3.0))
sketch22.addConstraint(Sketcher.Constraint("DistanceX", -1, 1, 0, 3, 166.695563))
sketch22.addConstraint(Sketcher.Constraint("DistanceY", -1, 1, 0, 3, 54.276945))
pocket4 = body.newObject("PartDesign::Pocket", "Pocket003")
pocket4.Profile = sketch22
pocket4.Length = 0.5

# Sketch on an angled plane
sketch23 = body.newObject("Sketcher::SketchObject", "Sketch022")
sketch23.Placement = App.Placement(App.Vector(8.259993, -14.235307, 0), App.Rotation(App.Vector(0.864938487, 0.501877887, 0), App.Vector(0, 0, -1), App.Vector(-0.501877887, 0.864938487, 0), "ZXY"))
add_polygon(sketch23, [(135, 25), (135, 5), (145, 5), (145, 25)])  # lines 0-3
sketch23.addConstraint(Sketcher.Constraint("Vertical", 0))
sketch23.addConstraint(Sketcher.Constraint("Horizontal", 1))
sketch23.addConstraint(Sketcher.Constraint("Vertical", 2))
sketch23.addConstraint(Sketcher.Constraint("Horizontal", 3))
sketch23.addConstraint(Sketcher.Constraint("DistanceY", 0, 2, 0, 1, 20.0))
sketch23.addConstraint(Sketcher.Constraint("DistanceX", 1, 1, 1, 2, 9.698325))
sketch23.addConstraint(Sketcher.Constraint("DistanceX", -1, 1, 0, 2, 135.314859))
sketch23.addConstraint(Sketcher.Constraint("DistanceY", -1, 1, 0, 2, 5.171928))
pocket5 = body.newObject("PartDesign::Pocket", "Pocket004")
pocket5.Profile = sketch23
pocket5.Length = 0.5

# Sketch on XY plane
sketch24 = body.newObject("Sketcher::SketchObject", "Sketch023")
sketch24.AttachmentSupport = (doc.getObject("XY_Plane"), [""])
sketch24.MapMode = "FlatFace"
sketch24.AttachmentOffset = App.Placement(App.Vector(0, 0, -5.171928), App.Rotation())
sketch24.addGeometry(Part.LineSegment(App.Vector(150, 41, 0), App.Vector(150, 55, 0)), False)
sketch24.addGeometry(Part.ArcOfCircle(Part.Circle(App.Vector(144, 55, 0), App.Vector(0, 0, 1), 6), math.radians(0), math.radians(180)), False)
sketch24.addGeometry(Part.LineSegment(App.Vector(138, 55, 0), App.Vector(138, 41, 0)), False)
sketch24.addGeometry(Part.ArcOfCircle(Part.Circle(App.Vector(144, 41, 0), App.Vector(0, 0, 1), 6), math.radians(180), math.radians(360)), False)
sketch24.addConstraint(Sketcher.Constraint("Tangent", 0, 2, 1, 1))
sketch24.addConstraint(Sketcher.Constraint("Tangent", 1, 2, 2, 1))
sketch24.addConstraint(Sketcher.Constraint("Tangent", 2, 2, 3, 1))
sketch24.addConstraint(Sketcher.Constraint("Tangent", 3, 2, 0, 1))
sketch24.addConstraint(Sketcher.Constraint("Vertical", 0))
sketch24.addConstraint(Sketcher.Constraint("Vertical", 2))
sketch24.addConstraint(Sketcher.Constraint("Radius", 1, 6.236235))
sketch24.addConstraint(Sketcher.Constraint("DistanceY", 0, 1, 0, 2, 14.110088))
sketch24.addConstraint(Sketcher.Constraint("DistanceX", -1, 1, 0, 2, 150.46411))
sketch24.addConstraint(Sketcher.Constraint("DistanceY", -1, 1, 1, 3, 55.324272))
pad19 = body.newObject("PartDesign::Pad", "Pad018")
pad19.Profile = sketch24
pad19.Length = 30

# Sketch on an angled plane
sketch25 = body.newObject("Sketcher::SketchObject", "Sketch024")
sketch25.Placement = App.Placement(App.Vector(8.510932, -14.667776, 0), App.Rotation(App.Vector(0.864938487, 0.501877887, 0), App.Vector(0, 0, -1), App.Vector(-0.501877887, 0.864938487, 0), "ZXY"))
sketch25.addGeometry(Part.Circle(App.Vector(140.1, 18.9, 0), App.Vector(0, 0, 1), 2), False)
sketch25.addGeometry(Part.Circle(App.Vector(140.1, 13.6, 0), App.Vector(0, 0, 1), 2), False)
sketch25.addConstraint(Sketcher.Constraint("Equal", 0, 1))
sketch25.addConstraint(Sketcher.Constraint("Vertical", 0, 3, 1, 3))
sketch25.addConstraint(Sketcher.Constraint("Diameter", 0, 4.0))
sketch25.addConstraint(Sketcher.Constraint("DistanceY", -1, 1, 0, 3, 18.876499))
sketch25.addConstraint(Sketcher.Constraint("DistanceX", -1, 1, 0, 3, 140.054231))
sketch25.addConstraint(Sketcher.Constraint("DistanceY", -1, 1, 1, 3, 13.553842))
pad20 = body.newObject("PartDesign::Pad", "Pad019")
pad20.Profile = sketch25
pad20.Length = 0.5

# Sketch on XY plane
sketch26 = body.newObject("Sketcher::SketchObject", "Sketch025")
sketch26.AttachmentSupport = (doc.getObject("XY_Plane"), [""])
sketch26.MapMode = "FlatFace"
sketch26.AttachmentOffset = App.Placement(App.Vector(0, 0, 24.828072), App.Rotation())
sketch26.addGeometry(Part.Circle(App.Vector(144.2, 55.3, 0), App.Vector(0, 0, 1), 3.5), False)
sketch26.addConstraint(Sketcher.Constraint("Diameter", 0, 7.0))
sketch26.addConstraint(Sketcher.Constraint("DistanceX", -1, 1, 0, 3, 144.227875))
sketch26.addConstraint(Sketcher.Constraint("DistanceY", -1, 1, 0, 3, 55.324272))
pad21 = body.newObject("PartDesign::Pad", "Pad020")
pad21.Profile = sketch26
pad21.Length = 0.5

# Sketch on XY plane
sketch27 = body.newObject("Sketcher::SketchObject", "Sketch026")
sketch27.AttachmentSupport = (doc.getObject("XY_Plane"), [""])
sketch27.MapMode = "FlatFace"
sketch27.AttachmentOffset = App.Placement(App.Vector(0, 0, 25.328072), App.Rotation())
sketch27.addGeometry(Part.Circle(App.Vector(144.2, 55.3, 0), App.Vector(0, 0, 1), 2.9), False)
sketch27.addGeometry(Part.Circle(App.Vector(144.2, 55.3, 0), App.Vector(0, 0, 1), 2.5), False)
sketch27.addGeometry(Part.Circle(App.Vector(144.2, 55.3, 0), App.Vector(0, 0, 1), 0.9), False)
sketch27.addConstraint(Sketcher.Constraint("Coincident", 1, 3, 0, 3))
sketch27.addConstraint(Sketcher.Constraint("Coincident", 2, 3, 0, 3))
sketch27.addConstraint(Sketcher.Constraint("Diameter", 2, 1.876461))
sketch27.addConstraint(Sketcher.Constraint("Diameter", 0, 5.849534))
sketch27.addConstraint(Sketcher.Constraint("Diameter", 1, 5.040205))
sketch27.addConstraint(Sketcher.Constraint("DistanceX", -1, 1, 0, 3, 144.227875))
sketch27.addConstraint(Sketcher.Constraint("DistanceY", -1, 1, 0, 3, 55.324272))
pad22 = body.newObject("PartDesign::Pad", "Pad021")
pad22.Profile = sketch27
pad22.Length = 10

# Sketch on XY plane
sketch28 = body.newObject("Sketcher::SketchObject", "Sketch027")
sketch28.AttachmentSupport = (doc.getObject("XY_Plane"), [""])
sketch28.MapMode = "FlatFace"
sketch28.AttachmentOffset = App.Placement(App.Vector(0, 0, 24.828072), App.Rotation())
sketch28.addGeometry(Part.Circle(App.Vector(144.2, 43.7, 0), App.Vector(0, 0, 1), 2.5), False)
sketch28.addConstraint(Sketcher.Constraint("Diameter", 0, 5.0))
sketch28.addConstraint(Sketcher.Constraint("DistanceY", -1, 1, 0, 3, 43.715821))
sketch28.addConstraint(Sketcher.Constraint("DistanceX", -1, 1, 0, 3, 144.227875))
pad23 = body.newObject("PartDesign::Pad", "Pad022")
pad23.Profile = sketch28
pad23.Length = 20
body2 = doc.addObject("PartDesign::Body", "Body001")

# Sketch on XY plane
sketch29 = body2.newObject("Sketcher::SketchObject", "Sketch028")
sketch29.AttachmentSupport = (doc.getObject("XY_Plane001"), [""])
sketch29.MapMode = "FlatFace"
sketch29.AttachmentOffset = App.Placement(App.Vector(0, 0, -74.935876), App.Rotation())
add_polygon(sketch29, [(222, 90), (222, 54), (187, 54), (187, 90)])  # lines 0-3
sketch29.addConstraint(Sketcher.Constraint("Vertical", 0))
sketch29.addConstraint(Sketcher.Constraint("Horizontal", 1))
sketch29.addConstraint(Sketcher.Constraint("Vertical", 2))
sketch29.addConstraint(Sketcher.Constraint("Horizontal", 3))
sketch29.addConstraint(Sketcher.Constraint("DistanceY", -1, 1, 2, 2, 90.0))
sketch29.addConstraint(Sketcher.Constraint("DistanceX", 1, 2, 1, 1, 34.278286))
sketch29.addConstraint(Sketcher.Constraint("DistanceY", 0, 2, 0, 1, 35.763673))
sketch29.addConstraint(Sketcher.Constraint("DistanceX", -1, 1, 0, 2, 221.501483))
pad24 = body2.newObject("PartDesign::Pad", "Pad023")
pad24.Profile = sketch29
pad24.Length = 15
pad24.Reversed = True
body3 = doc.addObject("PartDesign::Body", "Body002")

# Sketch on XY plane
sketch30 = body3.newObject("Sketcher::SketchObject", "Sketch029")
sketch30.AttachmentSupport = (doc.getObject("XY_Plane002"), [""])
sketch30.MapMode = "FlatFace"
sketch30.AttachmentOffset = App.Placement(App.Vector(0, 0, -74.935876), App.Rotation())
sketch30.addGeometry(Part.Circle(App.Vector(131, 50, 0), App.Vector(0, 0, 1), 33), False)
sketch30.addConstraint(Sketcher.Constraint("DistanceY", -1, 1, 0, 3, 50.0))
sketch30.addConstraint(Sketcher.Constraint("Diameter", 0, 66.204062))
sketch30.addConstraint(Sketcher.Constraint("DistanceX", -1, 1, 0, 3, 130.873377))
pad25 = body3.newObject("PartDesign::Pad", "Pad024")
pad25.Profile = sketch30
pad25.Length = 1
pad25.Reversed = True
pad25.TaperAngle = -20

doc.recompute()
